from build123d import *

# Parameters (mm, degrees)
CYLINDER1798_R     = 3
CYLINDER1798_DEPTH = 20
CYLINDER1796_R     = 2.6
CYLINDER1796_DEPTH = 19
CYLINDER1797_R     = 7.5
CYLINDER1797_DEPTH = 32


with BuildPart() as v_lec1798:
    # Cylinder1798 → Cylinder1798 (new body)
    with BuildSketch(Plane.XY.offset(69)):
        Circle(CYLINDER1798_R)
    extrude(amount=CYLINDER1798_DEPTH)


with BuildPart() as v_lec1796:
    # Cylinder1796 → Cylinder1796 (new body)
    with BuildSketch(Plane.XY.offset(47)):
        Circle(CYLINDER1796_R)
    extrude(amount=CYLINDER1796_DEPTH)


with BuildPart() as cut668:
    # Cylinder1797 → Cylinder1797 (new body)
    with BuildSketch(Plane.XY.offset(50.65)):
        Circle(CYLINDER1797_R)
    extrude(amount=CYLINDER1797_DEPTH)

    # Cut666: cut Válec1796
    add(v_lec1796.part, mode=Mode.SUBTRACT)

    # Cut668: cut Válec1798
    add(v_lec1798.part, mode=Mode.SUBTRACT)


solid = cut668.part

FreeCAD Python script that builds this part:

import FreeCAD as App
import Part
import Sketcher
from FreeCAD import Vector
Q = App.Units.Quantity

doc = App.newDocument("Part")
body = doc.addObject("PartDesign::Body", "Body")

sketch1 = doc.addObject("Sketcher::SketchObject", "Sketch")
body.addObject(sketch1)
sketch1.AttachmentSupport = (doc.XY_Plane, [""])
sketch1.MapMode = "FlatFace"
sketch1.AttachmentOffset = App.Placement(Vector(0, 0, 69), App.Rotation())
sketch1.addGeometry(Part.Circle(Vector(0, 0, 0), Vector(0, 0, 1), 3), False)
sketch1.addConstraint([
    Sketcher.Constraint("Coincident", 0, 3, -1, 1),
    Sketcher.Constraint("Diameter", 0, Q("6 mm")),
])
pad1 = doc.addObject("PartDesign::Pad", "Pad")
body.addObject(pad1)
pad1.Profile = sketch1
pad1.Length = 20
body2 = doc.addObject("PartDesign::Body", "Body001")

sketch2 = doc.addObject("Sketcher::SketchObject", "Sketch001")
body2.addObject(sketch2)
sketch2.AttachmentSupport = (doc.getObject("XY_Plane001"), [""])
sketch2.MapMode = "FlatFace"
sketch2.AttachmentOffset = App.Placement(Vector(0, 0, 47), App.Rotation())
sketch2.addGeometry(Part.Circle(Vector(0, 0, 0), Vector(0, 0, 1), 2.6), False)
sketch2.addConstraint([
    Sketcher.Constraint("Coincident", 0, 3, -1, 1),
    Sketcher.Constraint("Diameter", 0, Q("5.2 mm")),
])
pad2 = doc.addObject("PartDesign::Pad", "Pad001")
body2.addObject(pad2)
pad2.Profile = sketch2
pad2.Length = 19
body3 = doc.addObject("PartDesign::Body", "Body002")

sketch3 = doc.addObject("Sketcher::SketchObject", "Sketch002")
body3.addObject(sketch3)
sketch3.AttachmentSupport = (doc.getObject("XY_Plane002"), [""])
sketch3.MapMode = "FlatFace"
sketch3.AttachmentOffset = App.Placement(Vector(0, 0, 50.65), App.Rotation())
sketch3.addGeometry(Part.Circle(Vector(0, 0, 0), Vector(0, 0, 1), 8), False)
sketch3.addConstraint([
    Sketcher.Constraint("Coincident", 0, 3, -1, 1),
    Sketcher.Constraint("Diameter", 0, Q("15 mm")),
])
pad3 = doc.addObject("PartDesign::Pad", "Pad002")
body3.addObject(pad3)
pad3.Profile = sketch3
pad3.Length = 32
doc.recompute()

boolean = doc.addObject("PartDesign::Boolean", "Boolean")
body3.addObject(boolean)
boolean.Type = "Cut"
boolean.addObjects([body2])
doc.recompute()

boolean2 = doc.addObject("PartDesign::Boolean", "Boolean001")
body3.addObject(boolean2)
boolean2.Type = "Cut"
boolean2.addObjects([body])

doc.recompute()
